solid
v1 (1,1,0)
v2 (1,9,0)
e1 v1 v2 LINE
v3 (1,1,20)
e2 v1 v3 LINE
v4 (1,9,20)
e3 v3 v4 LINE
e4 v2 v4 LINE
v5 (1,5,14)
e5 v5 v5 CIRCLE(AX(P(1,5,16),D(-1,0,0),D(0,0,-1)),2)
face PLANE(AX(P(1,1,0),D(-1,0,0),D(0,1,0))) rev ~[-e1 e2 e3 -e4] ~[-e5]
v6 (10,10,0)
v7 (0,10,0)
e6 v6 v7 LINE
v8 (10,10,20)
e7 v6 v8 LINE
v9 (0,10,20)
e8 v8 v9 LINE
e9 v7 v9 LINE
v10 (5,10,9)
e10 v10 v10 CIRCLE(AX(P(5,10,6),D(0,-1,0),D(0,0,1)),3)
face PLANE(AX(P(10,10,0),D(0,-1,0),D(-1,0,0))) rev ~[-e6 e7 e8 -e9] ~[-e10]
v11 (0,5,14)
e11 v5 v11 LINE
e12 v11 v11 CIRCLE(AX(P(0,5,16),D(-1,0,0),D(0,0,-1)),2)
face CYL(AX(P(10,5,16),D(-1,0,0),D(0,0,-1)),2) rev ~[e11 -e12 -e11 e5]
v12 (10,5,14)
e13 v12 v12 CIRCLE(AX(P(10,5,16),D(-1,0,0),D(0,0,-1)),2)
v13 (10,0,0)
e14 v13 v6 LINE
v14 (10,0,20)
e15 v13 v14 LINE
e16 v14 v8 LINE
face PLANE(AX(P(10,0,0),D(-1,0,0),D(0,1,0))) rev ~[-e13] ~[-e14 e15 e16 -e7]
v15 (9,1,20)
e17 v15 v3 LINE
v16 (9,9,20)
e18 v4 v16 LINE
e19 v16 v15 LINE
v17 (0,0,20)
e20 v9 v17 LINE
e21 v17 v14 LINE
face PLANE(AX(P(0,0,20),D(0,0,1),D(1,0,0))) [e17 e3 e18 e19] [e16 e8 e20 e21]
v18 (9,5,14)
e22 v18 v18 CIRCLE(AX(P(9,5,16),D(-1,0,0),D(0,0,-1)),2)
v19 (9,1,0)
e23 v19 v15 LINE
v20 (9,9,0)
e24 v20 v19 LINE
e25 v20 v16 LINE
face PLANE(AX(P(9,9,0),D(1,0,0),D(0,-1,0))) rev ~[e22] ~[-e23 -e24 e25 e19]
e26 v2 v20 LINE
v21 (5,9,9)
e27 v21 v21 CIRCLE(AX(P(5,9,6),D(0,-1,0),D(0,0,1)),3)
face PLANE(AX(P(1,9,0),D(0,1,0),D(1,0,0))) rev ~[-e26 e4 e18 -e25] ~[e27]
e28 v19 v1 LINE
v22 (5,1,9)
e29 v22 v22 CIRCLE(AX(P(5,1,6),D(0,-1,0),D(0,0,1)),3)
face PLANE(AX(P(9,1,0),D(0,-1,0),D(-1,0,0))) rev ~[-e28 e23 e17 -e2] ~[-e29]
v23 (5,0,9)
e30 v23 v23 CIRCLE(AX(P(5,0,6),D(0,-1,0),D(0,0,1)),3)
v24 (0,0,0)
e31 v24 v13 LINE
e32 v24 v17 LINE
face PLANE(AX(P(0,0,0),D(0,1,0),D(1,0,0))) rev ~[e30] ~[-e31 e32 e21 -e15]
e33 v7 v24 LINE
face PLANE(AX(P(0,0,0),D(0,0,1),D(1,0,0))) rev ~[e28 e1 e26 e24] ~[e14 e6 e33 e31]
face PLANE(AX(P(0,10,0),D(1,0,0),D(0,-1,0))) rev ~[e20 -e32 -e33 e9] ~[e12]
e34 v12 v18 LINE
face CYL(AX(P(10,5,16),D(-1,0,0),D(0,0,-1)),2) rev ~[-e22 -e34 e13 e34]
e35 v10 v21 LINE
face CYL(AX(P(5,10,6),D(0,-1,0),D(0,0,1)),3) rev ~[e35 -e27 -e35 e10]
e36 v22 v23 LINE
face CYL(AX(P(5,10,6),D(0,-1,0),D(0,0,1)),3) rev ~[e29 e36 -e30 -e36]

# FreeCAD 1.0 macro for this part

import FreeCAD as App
import Part
import Sketcher
from FreeCAD import Vector
Q = App.Units.Quantity

doc = App.newDocument("Part")
body = doc.addObject("PartDesign::Body", "Body")

# Sketch on XY plane
sketch1 = body.newObject("Sketcher::SketchObject", "Sketch")
sketch1.AttachmentSupport = (doc.getObject("XY_Plane"), [""])
sketch1.MapMode = "FlatFace"
sketch1.addGeometry(Part.LineSegment(Vector(0, 10, 0), Vector(0, 0, 0)), False)
sketch1.addGeometry(Part.LineSegment(Vector(0, 0, 0), Vector(10, 0, 0)), False)
sketch1.addGeometry(Part.LineSegment(Vector(10, 0, 0), Vector(10, 10, 0)), False)
sketch1.addGeometry(Part.LineSegment(Vector(10, 10, 0), Vector(0, 10, 0)), False)
sketch1.addGeometry(Part.LineSegment(Vector(1, 1, 0), Vector(1, 9, 0)), False)
sketch1.addGeometry(Part.LineSegment(Vector(1, 9, 0), Vector(9, 9, 0)), False)
sketch1.addGeometry(Part.LineSegment(Vector(9, 9, 0), Vector(9, 1, 0)), False)
sketch1.addGeometry(Part.LineSegment(Vector(9, 1, 0), Vector(1, 1, 0)), False)
sketch1.addConstraint(Sketcher.Constraint("Coincident", 0, 2, 1, 1))
sketch1.addConstraint(Sketcher.Constraint("Coincident", 1, 2, 2, 1))
sketch1.addConstraint(Sketcher.Constraint("Coincident", 2, 2, 3, 1))
sketch1.addConstraint(Sketcher.Constraint("Coincident", 3, 2, 0, 1))
sketch1.addConstraint(Sketcher.Constraint("Coincident", 4, 2, 5, 1))
sketch1.addConstraint(Sketcher.Constraint("Coincident", 5, 2, 6, 1))
sketch1.addConstraint(Sketcher.Constraint("Coincident", 6, 2, 7, 1))
sketch1.addConstraint(Sketcher.Constraint("Coincident", 7, 2, 4, 1))
sketch1.addConstraint(Sketcher.Constraint("Vertical", 0))
sketch1.addConstraint(Sketcher.Constraint("Horizontal", 1))
sketch1.addConstraint(Sketcher.Constraint("Vertical", 2))
sketch1.addConstraint(Sketcher.Constraint("Horizontal", 3))
sketch1.addConstraint(Sketcher.Constraint("Vertical", 4))
sketch1.addConstraint(Sketcher.Constraint("Horizontal", 5))
sketch1.addConstraint(Sketcher.Constraint("Vertical", 6))
sketch1.addConstraint(Sketcher.Constraint("Horizontal", 7))
sketch1.addConstraint(Sketcher.Constraint("Coincident", 0, 2, -1, 1))
sketch1.addConstraint(Sketcher.Constraint("Equal", 3, 0))
sketch1.addConstraint(Sketcher.Constraint("Equal", 7, 4))
sketch1.addConstraint(Sketcher.Constraint("DistanceX", 1, 1, 1, 2, Q("10 mm")))
sketch1.addConstraint(Sketcher.Constraint("DistanceX", -1, 1, 4, 2, Q("1 mm")))
sketch1.addConstraint(Sketcher.Constraint("DistanceY", -1, 1, 6, 2, Q("1 mm")))
sketch1.addConstraint(Sketcher.Constraint("DistanceY", 4, 2, 3, 2, Q("1 mm")))
pad1 = body.newObject("PartDesign::Pad", "Pad")
pad1.Profile = sketch1
pad1.Length = 20

# Sketch on YZ plane
sketch2 = body.newObject("Sketcher::SketchObject", "Sketch001")
sketch2.AttachmentSupport = (doc.getObject("YZ_Plane"), [""])
sketch2.MapMode = "FlatFace"
sketch2.AttachmentOffset = App.Placement(Vector(0, 0, 10), App.Rotation())
sketch2.addGeometry(Part.Circle(Vector(5, 16, 0), Vector(0, 0, 1), 2), False)
sketch2.addConstraint(Sketcher.Constraint("Diameter", 0, Q("4 mm")))
sketch2.addConstraint(Sketcher.Constraint("DistanceX", -1, 1, 0, 3, Q("5 mm")))
sketch2.addConstraint(Sketcher.Constraint("DistanceY", -1, 1, 0, 3, Q("16 mm")))
doc.recompute()
hole = body.newObject("PartDesign::Hole", "Hole")
hole.Profile = sketch2
hole.ThreadType = "None"
hole.Diameter = 4
hole.DepthType = "ThroughAll"

# Sketch on XZ plane
sketch3 = body.newObject("Sketcher::SketchObject", "Sketch002")
sketch3.AttachmentSupport = (doc.getObject("XZ_Plane"), [""])
sketch3.MapMode = "FlatFace"
sketch3.AttachmentOffset = App.Placement(Vector(0, 0, -10), App.Rotation())
sketch3.addGeometry(Part.Circle(Vector(5, 6, 0), Vector(0, 0, 1), 3), False)
sketch3.addConstraint(Sketcher.Constraint("Diameter", 0, Q("6 mm")))
sketch3.addConstraint(Sketcher.Constraint("DistanceX", -1, 1, 0, 3, Q("5 mm")))
sketch3.addConstraint(Sketcher.Constraint("DistanceY", -1, 1, 0, 3, Q("6 mm")))
doc.recompute()
hole2 = body.newObject("PartDesign::Hole", "Hole001")
hole2.Profile = sketch3
hole2.ThreadType = "None"
hole2.Diameter = 6
hole2.DepthType = "ThroughAll"
hole2.Reversed = True

doc.recompute()
